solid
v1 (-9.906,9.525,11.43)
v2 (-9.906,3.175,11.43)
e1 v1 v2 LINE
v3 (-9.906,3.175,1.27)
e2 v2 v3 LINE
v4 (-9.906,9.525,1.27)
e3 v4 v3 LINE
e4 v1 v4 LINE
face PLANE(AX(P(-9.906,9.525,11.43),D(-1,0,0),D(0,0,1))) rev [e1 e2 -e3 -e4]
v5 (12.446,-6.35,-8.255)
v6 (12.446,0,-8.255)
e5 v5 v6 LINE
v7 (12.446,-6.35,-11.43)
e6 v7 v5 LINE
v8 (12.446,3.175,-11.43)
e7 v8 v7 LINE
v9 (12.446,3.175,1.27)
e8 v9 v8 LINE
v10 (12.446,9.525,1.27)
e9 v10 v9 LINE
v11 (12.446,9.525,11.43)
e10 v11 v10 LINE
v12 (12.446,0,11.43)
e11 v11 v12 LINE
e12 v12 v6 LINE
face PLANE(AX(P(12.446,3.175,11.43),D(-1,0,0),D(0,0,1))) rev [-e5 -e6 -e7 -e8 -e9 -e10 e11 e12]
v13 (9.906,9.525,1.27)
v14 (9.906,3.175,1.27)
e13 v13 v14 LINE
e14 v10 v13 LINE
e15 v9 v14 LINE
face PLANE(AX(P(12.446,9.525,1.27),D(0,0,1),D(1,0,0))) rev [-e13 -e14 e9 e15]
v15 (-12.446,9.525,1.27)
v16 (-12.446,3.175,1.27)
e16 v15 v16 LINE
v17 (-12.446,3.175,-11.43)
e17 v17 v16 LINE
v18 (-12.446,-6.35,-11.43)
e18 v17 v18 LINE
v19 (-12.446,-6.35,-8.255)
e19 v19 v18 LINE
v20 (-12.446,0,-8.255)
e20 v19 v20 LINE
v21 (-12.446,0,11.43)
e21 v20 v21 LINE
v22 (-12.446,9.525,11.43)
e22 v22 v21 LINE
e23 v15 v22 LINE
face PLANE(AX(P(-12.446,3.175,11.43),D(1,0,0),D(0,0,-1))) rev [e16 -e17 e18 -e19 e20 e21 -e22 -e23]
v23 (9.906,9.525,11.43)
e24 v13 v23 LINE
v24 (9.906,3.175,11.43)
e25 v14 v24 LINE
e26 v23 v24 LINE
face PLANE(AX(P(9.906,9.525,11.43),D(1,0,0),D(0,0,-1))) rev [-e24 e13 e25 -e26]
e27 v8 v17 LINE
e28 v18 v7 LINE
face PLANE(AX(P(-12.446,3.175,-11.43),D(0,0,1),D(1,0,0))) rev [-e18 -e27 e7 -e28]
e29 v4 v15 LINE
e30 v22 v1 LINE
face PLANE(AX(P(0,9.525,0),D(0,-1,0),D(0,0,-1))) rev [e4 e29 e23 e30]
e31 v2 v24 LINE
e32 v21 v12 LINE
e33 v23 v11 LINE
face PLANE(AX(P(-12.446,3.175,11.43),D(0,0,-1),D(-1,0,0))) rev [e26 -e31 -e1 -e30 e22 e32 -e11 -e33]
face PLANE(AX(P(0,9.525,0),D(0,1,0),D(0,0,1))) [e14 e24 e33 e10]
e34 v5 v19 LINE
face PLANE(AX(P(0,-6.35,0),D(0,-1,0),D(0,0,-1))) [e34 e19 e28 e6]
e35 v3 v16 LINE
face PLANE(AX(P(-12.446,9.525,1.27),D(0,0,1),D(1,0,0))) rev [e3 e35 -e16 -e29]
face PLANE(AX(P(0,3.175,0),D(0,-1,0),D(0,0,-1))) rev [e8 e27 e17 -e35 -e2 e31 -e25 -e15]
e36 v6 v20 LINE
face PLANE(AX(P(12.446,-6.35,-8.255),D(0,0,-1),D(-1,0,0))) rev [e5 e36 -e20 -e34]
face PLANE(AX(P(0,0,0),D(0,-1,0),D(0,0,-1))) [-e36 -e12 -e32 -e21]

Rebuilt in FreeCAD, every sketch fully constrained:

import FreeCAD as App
import Part
import Sketcher
from FreeCAD import Vector
Q = App.Units.Quantity

doc = App.newDocument("Part")
params = doc.addObject("Spreadsheet::Sheet", "Params")
for row, (alias, value) in enumerate([
    ("sketch1_height", "0.9 in"),
    ("sketch1_width", "0.98 in"),
    ("pad1_length", "0.125 in"),
    ("sketch2_width", "0.1 in"),
    ("sketch2_height", "0.4 in"),
    ("pad2_length", "0.25 in"),
    ("sketch3_width", "0.98 in"),
    ("sketch3_height", "0.125 in"),
    ("pad3_length", "0.25 in"),
], start=1):
    params.set(f"A{row}", alias)
    params.set(f"B{row}", "=" + value)
    params.setAlias(f"B{row}", alias)

body = doc.addObject("PartDesign::Body", "Body")

# Sketch on XZ plane
sketch1 = body.newObject("Sketcher::SketchObject", "Sketch")
sketch1.AttachmentSupport = (doc.getObject("XZ_Plane"), [""])
sketch1.MapMode = "FlatFace"
sketch1.addGeometry(Part.LineSegment(Vector(-12, -11, 0), Vector(-12, 11, 0)), False)
sketch1.addGeometry(Part.LineSegment(Vector(-12, 11, 0), Vector(12, 11, 0)), False)
sketch1.addGeometry(Part.LineSegment(Vector(12, 11, 0), Vector(12, -11, 0)), False)
sketch1.addGeometry(Part.LineSegment(Vector(12, -11, 0), Vector(-12, -11, 0)), False)
sketch1.addConstraint(Sketcher.Constraint("Coincident", 0, 2, 1, 1))
sketch1.addConstraint(Sketcher.Constraint("Coincident", 1, 2, 2, 1))
sketch1.addConstraint(Sketcher.Constraint("Coincident", 2, 2, 3, 1))
sketch1.addConstraint(Sketcher.Constraint("Coincident", 3, 2, 0, 1))
sketch1.addConstraint(Sketcher.Constraint("Vertical", 0))
sketch1.addConstraint(Sketcher.Constraint("Horizontal", 1))
sketch1.addConstraint(Sketcher.Constraint("Vertical", 2))
sketch1.addConstraint(Sketcher.Constraint("Horizontal", 3))
sketch1.addConstraint(Sketcher.Constraint("Symmetric", 0, 2, 2, 2, -1, 1))
sketch1.addConstraint(Sketcher.Constraint("DistanceY", 0, 1, 0, 2, Q("0.9 in")))
sketch1.addConstraint(Sketcher.Constraint("DistanceX", 1, 1, 1, 2, Q("0.98 in")))
sketch1.setExpression("Constraints[9]", "Params.sketch1_height")
sketch1.setExpression("Constraints[10]", "Params.sketch1_width")
pad1 = body.newObject("PartDesign::Pad", "Pad")
pad1.Profile = sketch1
pad1.setExpression("Length", "Params.pad1_length")
pad1.Reversed = True

# Sketch on XZ plane
sketch2 = body.newObject("Sketcher::SketchObject", "Sketch001")
sketch2.AttachmentSupport = (doc.getObject("XZ_Plane"), [""])
sketch2.MapMode = "FlatFace"
sketch2.AttachmentOffset = App.Placement(Vector(0, 0, -0.125 * 25.4), App.Rotation())
sketch2.addGeometry(Part.LineSegment(Vector(9.9, 1.3, 0), Vector(9.9, 11.4, 0)), False)
sketch2.addGeometry(Part.LineSegment(Vector(9.9, 11.4, 0), Vector(12.4, 11.4, 0)), False)
sketch2.addGeometry(Part.LineSegment(Vector(12.4, 11.4, 0), Vector(12.4, 1.3, 0)), False)
sketch2.addGeometry(Part.LineSegment(Vector(12.4, 1.3, 0), Vector(9.9, 1.3, 0)), False)
sketch2.addGeometry(Part.LineSegment(Vector(-12.4, 1.3, 0), Vector(-12.4, 11.4, 0)), False)
sketch2.addGeometry(Part.LineSegment(Vector(-12.4, 11.4, 0), Vector(-9.9, 11.4, 0)), False)
sketch2.addGeometry(Part.LineSegment(Vector(-9.9, 11.4, 0), Vector(-9.9, 1.3, 0)), False)
sketch2.addGeometry(Part.LineSegment(Vector(-9.9, 1.3, 0), Vector(-12.4, 1.3, 0)), False)
sketch2.addConstraint(Sketcher.Constraint("Coincident", 0, 2, 1, 1))
sketch2.addConstraint(Sketcher.Constraint("Coincident", 1, 2, 2, 1))
sketch2.addConstraint(Sketcher.Constraint("Coincident", 2, 2, 3, 1))
sketch2.addConstraint(Sketcher.Constraint("Coincident", 3, 2, 0, 1))
sketch2.addConstraint(Sketcher.Constraint("Coincident", 4, 2, 5, 1))
sketch2.addConstraint(Sketcher.Constraint("Coincident", 5, 2, 6, 1))
sketch2.addConstraint(Sketcher.Constraint("Coincident", 6, 2, 7, 1))
sketch2.addConstraint(Sketcher.Constraint("Coincident", 7, 2, 4, 1))
sketch2.addConstraint(Sketcher.Constraint("Vertical", 0))
sketch2.addConstraint(Sketcher.Constraint("Horizontal", 1))
sketch2.addConstraint(Sketcher.Constraint("Vertical", 2))
sketch2.addConstraint(Sketcher.Constraint("Horizontal", 3))
sketch2.addConstraint(Sketcher.Constraint("Vertical", 4))
sketch2.addConstraint(Sketcher.Constraint("Horizontal", 5))
sketch2.addConstraint(Sketcher.Constraint("Vertical", 6))
sketch2.addConstraint(Sketcher.Constraint("Horizontal", 7))
sketch2.addConstraint(Sketcher.Constraint("Symmetric", 1, 2, 4, 2, -2))
sketch2.addConstraint(Sketcher.Constraint("Symmetric", 3, 2, 6, 2, -2))
sketch2.addConstraint(Sketcher.Constraint("DistanceX", 1, 1, 1, 2, Q("0.1 in")))
sketch2.addConstraint(Sketcher.Constraint("DistanceY", 0, 1, 0, 2, Q("0.4 in")))
sketch2.addConstraint(Sketcher.Constraint("DistanceX", -1, 1, 0, 2, Q("0.39 in")))
sketch2.addConstraint(Sketcher.Constraint("DistanceY", -1, 1, 0, 2, Q("0.45 in")))
sketch2.setExpression("Constraints[18]", "Params.sketch2_width")
sketch2.setExpression("Constraints[19]", "Params.sketch2_height")
pad2 = body.newObject("PartDesign::Pad", "Pad001")
pad2.Profile = sketch2
pad2.setExpression("Length", "Params.pad2_length")
pad2.Reversed = True

# Sketch on XZ plane
sketch3 = body.newObject("Sketcher::SketchObject", "Sketch002")
sketch3.AttachmentSupport = (doc.getObject("XZ_Plane"), [""])
sketch3.MapMode = "FlatFace"
sketch3.addGeometry(Part.LineSegment(Vector(-12.4, -8.3, 0), Vector(-12.4, -11.4, 0)), False)
sketch3.addGeometry(Part.LineSegment(Vector(-12.4, -11.4, 0), Vector(12.4, -11.4, 0)), False)
sketch3.addGeometry(Part.LineSegment(Vector(12.4, -11.4, 0), Vector(12.4, -8.3, 0)), False)
sketch3.addGeometry(Part.LineSegment(Vector(12.4, -8.3, 0), Vector(-12.4, -8.3, 0)), False)
sketch3.addConstraint(Sketcher.Constraint("Coincident", 0, 2, 1, 1))
sketch3.addConstraint(Sketcher.Constraint("Coincident", 1, 2, 2, 1))
sketch3.addConstraint(Sketcher.Constraint("Coincident", 2, 2, 3, 1))
sketch3.addConstraint(Sketcher.Constraint("Coincident", 3, 2, 0, 1))
sketch3.addConstraint(Sketcher.Constraint("Vertical", 0))
sketch3.addConstraint(Sketcher.Constraint("Horizontal", 1))
sketch3.addConstraint(Sketcher.Constraint("Vertical", 2))
sketch3.addConstraint(Sketcher.Constraint("Horizontal", 3))
sketch3.addConstraint(Sketcher.Constraint("DistanceX", 1, 1, 1, 2, Q("0.98 in")))
sketch3.addConstraint(Sketcher.Constraint("DistanceY", 0, 2, 0, 1, Q("0.125 in")))
sketch3.addConstraint(Sketcher.Constraint("DistanceX", 0, 2, -1, 1, Q("0.49 in")))
sketch3.addConstraint(Sketcher.Constraint("DistanceY", 0, 2, -1, 1, Q("0.45 in")))
sketch3.setExpression("Constraints[8]", "Params.sketch3_width")
sketch3.setExpression("Constraints[9]", "Params.sketch3_height")
pad3 = body.newObject("PartDesign::Pad", "Pad002")
pad3.Profile = sketch3
pad3.setExpression("Length", "Params.pad3_length")

doc.recompute()
